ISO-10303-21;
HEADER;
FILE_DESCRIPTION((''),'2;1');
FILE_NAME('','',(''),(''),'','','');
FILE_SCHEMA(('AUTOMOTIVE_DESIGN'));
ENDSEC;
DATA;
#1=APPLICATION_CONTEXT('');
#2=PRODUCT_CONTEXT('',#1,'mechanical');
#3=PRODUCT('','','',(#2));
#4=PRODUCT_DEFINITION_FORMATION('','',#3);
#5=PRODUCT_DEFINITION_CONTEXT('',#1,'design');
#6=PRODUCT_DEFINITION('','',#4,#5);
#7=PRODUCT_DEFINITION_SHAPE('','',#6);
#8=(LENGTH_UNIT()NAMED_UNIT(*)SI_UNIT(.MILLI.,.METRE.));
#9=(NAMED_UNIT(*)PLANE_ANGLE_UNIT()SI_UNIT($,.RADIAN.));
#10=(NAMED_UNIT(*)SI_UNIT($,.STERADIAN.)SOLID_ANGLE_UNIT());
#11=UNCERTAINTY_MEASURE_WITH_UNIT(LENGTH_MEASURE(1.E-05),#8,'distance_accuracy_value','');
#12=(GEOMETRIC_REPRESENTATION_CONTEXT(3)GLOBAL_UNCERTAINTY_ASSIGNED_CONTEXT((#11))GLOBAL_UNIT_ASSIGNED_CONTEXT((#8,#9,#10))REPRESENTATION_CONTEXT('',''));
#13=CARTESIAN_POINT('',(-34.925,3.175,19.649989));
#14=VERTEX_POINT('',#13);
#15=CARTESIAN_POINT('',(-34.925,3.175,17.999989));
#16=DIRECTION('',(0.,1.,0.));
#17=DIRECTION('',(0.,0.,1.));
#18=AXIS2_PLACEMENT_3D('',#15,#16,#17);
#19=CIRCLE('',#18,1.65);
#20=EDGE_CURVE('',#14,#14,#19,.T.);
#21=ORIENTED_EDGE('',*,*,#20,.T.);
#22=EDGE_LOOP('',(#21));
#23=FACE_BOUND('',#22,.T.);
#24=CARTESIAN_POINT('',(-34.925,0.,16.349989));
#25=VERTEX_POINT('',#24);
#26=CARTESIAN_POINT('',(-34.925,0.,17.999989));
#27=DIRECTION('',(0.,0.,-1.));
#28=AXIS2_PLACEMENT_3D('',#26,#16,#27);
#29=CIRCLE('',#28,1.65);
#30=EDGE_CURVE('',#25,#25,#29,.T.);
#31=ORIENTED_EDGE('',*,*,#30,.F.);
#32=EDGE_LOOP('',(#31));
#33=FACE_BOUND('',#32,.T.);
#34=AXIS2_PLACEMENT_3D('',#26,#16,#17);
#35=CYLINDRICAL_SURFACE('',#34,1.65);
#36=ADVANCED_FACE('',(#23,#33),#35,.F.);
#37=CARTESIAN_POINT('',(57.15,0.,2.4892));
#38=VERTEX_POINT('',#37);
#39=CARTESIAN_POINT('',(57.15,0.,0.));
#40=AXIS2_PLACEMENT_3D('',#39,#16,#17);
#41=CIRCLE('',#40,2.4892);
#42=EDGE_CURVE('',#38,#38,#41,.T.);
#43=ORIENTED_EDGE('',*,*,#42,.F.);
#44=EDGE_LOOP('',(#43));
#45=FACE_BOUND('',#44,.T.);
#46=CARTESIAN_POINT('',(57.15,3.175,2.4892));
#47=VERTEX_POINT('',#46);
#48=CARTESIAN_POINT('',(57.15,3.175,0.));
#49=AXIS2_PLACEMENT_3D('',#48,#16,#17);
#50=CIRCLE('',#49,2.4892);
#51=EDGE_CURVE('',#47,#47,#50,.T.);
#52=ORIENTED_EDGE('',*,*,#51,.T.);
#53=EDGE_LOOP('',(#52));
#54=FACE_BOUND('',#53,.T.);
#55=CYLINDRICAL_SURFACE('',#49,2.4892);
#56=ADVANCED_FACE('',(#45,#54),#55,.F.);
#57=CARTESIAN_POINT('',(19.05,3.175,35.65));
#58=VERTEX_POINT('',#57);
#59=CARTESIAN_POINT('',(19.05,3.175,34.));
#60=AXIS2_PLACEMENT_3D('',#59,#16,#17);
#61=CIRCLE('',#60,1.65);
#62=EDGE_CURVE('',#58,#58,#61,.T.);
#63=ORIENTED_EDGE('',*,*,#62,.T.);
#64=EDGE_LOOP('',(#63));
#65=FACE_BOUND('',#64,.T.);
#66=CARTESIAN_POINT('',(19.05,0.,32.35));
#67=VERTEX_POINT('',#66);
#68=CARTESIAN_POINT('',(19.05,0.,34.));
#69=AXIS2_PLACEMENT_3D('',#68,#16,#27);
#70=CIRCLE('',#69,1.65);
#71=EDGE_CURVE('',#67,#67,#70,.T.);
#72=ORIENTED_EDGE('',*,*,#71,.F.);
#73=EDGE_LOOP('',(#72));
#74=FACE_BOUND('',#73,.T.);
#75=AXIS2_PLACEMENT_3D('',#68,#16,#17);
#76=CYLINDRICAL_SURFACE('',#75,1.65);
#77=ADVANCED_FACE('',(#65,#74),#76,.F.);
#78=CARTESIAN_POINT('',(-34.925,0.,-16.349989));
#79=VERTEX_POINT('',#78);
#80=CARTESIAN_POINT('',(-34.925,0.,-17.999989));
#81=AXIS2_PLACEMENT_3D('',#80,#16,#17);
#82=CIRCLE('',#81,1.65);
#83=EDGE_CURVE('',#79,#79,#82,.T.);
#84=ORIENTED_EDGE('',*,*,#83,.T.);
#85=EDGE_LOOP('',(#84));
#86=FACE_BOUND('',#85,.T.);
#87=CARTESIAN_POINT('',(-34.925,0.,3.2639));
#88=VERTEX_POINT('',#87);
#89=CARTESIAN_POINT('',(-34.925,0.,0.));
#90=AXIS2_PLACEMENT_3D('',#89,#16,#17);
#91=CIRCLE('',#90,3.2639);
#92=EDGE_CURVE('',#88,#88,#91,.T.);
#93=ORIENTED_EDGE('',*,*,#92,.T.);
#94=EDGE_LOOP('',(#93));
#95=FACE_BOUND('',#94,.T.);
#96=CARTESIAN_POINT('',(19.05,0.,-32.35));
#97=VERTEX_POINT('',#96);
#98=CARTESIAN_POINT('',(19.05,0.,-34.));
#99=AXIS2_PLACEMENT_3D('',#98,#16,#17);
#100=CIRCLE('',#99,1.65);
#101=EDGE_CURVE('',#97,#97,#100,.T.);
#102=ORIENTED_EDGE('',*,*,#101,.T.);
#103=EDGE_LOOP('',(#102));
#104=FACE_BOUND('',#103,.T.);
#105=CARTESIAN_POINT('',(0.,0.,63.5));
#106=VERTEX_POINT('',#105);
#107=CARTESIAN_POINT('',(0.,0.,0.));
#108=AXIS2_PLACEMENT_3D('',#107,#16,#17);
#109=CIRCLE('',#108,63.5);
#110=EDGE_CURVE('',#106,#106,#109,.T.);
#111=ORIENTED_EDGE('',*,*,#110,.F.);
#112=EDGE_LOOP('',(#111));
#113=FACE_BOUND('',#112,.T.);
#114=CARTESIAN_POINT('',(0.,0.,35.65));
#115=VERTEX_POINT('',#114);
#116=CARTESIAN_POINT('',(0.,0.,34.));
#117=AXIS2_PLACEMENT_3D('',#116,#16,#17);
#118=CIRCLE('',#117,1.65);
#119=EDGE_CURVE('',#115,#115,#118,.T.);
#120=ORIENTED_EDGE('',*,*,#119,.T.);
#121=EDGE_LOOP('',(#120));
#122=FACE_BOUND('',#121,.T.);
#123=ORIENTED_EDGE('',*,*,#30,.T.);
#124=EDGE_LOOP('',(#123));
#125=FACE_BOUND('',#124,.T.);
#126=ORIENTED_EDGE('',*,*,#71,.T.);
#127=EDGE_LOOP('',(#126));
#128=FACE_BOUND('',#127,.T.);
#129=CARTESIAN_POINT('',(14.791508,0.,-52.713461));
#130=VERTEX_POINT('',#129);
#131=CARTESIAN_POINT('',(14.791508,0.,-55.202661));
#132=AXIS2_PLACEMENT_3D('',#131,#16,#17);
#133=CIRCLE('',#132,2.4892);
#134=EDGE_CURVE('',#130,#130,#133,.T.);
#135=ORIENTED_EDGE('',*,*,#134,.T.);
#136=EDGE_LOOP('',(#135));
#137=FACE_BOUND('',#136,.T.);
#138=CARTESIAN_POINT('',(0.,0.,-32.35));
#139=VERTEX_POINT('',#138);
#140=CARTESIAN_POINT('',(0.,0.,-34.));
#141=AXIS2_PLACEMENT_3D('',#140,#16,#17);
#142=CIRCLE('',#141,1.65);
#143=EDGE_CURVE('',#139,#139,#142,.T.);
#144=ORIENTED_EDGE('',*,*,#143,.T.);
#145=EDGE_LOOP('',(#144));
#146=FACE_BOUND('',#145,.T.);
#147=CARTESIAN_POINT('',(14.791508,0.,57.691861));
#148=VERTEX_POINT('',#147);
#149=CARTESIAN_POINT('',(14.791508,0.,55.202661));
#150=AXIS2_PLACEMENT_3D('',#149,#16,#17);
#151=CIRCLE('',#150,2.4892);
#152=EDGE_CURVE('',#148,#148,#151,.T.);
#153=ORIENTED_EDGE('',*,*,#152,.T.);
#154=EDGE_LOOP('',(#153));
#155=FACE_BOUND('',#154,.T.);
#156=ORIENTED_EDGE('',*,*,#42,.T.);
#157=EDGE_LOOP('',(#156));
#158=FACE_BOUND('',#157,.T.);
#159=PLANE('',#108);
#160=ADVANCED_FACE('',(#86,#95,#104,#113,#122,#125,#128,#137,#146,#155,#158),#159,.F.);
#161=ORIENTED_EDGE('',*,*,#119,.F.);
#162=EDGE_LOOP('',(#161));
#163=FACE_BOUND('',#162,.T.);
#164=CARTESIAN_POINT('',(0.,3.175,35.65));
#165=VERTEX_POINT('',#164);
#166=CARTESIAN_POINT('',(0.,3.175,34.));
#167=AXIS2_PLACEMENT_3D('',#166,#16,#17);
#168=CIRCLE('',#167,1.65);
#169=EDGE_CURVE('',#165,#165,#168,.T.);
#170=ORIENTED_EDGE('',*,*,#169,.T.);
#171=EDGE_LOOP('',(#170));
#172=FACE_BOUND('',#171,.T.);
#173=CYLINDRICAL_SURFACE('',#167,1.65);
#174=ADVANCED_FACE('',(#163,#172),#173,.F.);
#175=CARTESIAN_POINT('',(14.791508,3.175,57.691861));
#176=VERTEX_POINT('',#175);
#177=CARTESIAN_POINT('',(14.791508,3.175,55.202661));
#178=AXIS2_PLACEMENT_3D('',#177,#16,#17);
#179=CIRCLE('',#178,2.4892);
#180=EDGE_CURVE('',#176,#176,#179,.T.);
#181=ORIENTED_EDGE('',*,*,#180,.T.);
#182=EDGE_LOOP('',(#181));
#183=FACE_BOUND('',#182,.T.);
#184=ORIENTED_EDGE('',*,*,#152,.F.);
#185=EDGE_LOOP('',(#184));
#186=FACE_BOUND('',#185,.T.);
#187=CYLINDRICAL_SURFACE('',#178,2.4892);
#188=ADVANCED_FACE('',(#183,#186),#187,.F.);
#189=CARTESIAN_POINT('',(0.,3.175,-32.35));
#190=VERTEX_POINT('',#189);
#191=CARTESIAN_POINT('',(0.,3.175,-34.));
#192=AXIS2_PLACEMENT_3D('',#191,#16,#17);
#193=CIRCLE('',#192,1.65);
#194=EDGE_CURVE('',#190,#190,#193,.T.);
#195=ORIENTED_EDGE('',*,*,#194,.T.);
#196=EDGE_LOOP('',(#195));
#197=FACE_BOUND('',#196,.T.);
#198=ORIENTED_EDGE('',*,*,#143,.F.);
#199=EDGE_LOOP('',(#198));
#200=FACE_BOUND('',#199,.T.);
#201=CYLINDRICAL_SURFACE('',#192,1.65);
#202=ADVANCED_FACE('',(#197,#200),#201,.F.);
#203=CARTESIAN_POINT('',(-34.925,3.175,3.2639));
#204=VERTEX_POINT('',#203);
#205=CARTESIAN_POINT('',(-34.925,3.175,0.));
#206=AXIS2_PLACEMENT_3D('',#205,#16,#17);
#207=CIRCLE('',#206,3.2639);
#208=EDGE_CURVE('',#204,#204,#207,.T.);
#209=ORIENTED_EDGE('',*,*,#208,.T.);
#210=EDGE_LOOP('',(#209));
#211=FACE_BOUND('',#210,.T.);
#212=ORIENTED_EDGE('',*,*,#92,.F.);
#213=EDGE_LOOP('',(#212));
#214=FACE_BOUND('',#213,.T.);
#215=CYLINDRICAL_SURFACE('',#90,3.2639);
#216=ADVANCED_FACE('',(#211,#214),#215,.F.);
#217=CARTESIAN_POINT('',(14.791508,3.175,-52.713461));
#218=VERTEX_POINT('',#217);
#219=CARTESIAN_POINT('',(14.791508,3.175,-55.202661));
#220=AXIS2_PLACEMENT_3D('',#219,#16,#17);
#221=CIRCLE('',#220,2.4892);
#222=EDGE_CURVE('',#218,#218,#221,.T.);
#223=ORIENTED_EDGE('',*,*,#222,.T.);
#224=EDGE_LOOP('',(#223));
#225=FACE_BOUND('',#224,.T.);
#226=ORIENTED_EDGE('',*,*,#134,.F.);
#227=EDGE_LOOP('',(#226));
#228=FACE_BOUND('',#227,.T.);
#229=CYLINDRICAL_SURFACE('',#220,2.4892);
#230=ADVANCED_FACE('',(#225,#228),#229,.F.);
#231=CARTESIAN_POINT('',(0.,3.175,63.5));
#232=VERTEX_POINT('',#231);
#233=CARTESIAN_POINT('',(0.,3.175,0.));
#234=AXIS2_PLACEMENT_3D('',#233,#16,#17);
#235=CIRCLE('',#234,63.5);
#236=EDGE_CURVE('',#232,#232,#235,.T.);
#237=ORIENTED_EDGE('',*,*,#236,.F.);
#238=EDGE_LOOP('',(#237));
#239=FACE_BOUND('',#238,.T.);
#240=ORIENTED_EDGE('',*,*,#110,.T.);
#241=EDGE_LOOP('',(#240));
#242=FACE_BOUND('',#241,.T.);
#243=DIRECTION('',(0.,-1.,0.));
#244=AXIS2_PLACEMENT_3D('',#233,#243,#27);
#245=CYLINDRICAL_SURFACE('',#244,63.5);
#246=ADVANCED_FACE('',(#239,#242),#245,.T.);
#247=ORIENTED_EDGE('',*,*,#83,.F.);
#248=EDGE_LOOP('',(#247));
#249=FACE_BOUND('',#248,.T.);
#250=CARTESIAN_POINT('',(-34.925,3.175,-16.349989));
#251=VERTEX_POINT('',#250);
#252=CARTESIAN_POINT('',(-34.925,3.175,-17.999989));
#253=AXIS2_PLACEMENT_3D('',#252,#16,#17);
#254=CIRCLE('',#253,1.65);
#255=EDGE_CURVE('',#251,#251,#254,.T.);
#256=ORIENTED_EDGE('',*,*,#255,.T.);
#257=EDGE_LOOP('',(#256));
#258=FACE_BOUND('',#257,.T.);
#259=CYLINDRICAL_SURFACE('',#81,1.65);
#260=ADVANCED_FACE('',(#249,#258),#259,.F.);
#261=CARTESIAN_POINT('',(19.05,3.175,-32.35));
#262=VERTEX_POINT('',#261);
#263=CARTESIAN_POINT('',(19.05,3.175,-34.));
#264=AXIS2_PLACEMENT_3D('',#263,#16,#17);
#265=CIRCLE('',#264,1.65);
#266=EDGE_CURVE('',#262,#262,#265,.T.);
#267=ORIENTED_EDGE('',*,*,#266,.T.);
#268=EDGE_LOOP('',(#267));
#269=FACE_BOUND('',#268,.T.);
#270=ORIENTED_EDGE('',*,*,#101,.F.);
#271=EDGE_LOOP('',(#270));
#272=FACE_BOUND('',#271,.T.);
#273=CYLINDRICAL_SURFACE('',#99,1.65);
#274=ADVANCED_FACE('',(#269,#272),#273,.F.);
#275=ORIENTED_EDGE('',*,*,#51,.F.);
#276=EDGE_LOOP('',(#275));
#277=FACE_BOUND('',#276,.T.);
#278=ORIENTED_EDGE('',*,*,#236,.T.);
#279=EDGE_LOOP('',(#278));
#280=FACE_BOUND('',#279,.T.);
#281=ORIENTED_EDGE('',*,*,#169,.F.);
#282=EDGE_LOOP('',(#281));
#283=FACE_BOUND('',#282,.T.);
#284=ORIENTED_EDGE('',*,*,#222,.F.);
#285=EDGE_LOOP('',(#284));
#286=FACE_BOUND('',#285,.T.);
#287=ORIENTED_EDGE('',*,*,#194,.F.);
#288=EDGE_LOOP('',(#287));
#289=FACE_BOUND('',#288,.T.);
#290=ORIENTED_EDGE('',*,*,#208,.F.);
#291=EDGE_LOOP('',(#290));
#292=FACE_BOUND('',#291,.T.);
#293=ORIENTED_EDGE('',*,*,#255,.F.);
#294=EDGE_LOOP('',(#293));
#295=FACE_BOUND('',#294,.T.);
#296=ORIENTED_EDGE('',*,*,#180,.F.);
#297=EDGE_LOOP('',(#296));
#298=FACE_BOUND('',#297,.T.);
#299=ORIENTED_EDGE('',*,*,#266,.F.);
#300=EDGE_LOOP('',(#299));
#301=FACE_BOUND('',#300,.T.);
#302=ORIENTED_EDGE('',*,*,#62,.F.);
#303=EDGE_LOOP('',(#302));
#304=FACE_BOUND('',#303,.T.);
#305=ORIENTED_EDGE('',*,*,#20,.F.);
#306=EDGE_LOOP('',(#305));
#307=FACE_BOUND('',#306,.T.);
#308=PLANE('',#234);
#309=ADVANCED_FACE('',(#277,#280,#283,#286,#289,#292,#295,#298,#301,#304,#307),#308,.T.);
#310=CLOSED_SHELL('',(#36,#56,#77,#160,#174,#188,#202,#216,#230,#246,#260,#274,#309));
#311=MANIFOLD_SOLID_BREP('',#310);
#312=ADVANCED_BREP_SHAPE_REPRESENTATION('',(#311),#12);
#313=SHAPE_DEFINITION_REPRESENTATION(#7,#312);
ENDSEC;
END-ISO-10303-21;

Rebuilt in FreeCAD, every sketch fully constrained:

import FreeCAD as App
import Part
import Sketcher

V = App.Vector
Q = App.Units.Quantity

doc = App.newDocument("Part")
body = doc.addObject("PartDesign::Body", "Body")

sketch1 = body.newObject("Sketcher::SketchObject", "Sketch")
sketch1.AttachmentSupport = (doc.getObject("XZ_Plane"), [""])
sketch1.MapMode = "FlatFace"
sketch1.addGeometry(Part.Circle(V(0, 0, 0), V(0, 0, 1), 64), False)
sketch1.addConstraint(Sketcher.Constraint("Coincident", 0, 3, -1, 1))
sketch1.addConstraint(Sketcher.Constraint("Diameter", 0, Q("5 in")))
pad1 = body.newObject("PartDesign::Pad", "Pad")
pad1.Profile = sketch1
pad1.Length = Q("0.125 in")
pad1.Reversed = True

sketch2 = body.newObject("Sketcher::SketchObject", "Sketch001")
sketch2.AttachmentSupport = (doc.getObject("XZ_Plane"), [""])
sketch2.MapMode = "FlatFace"
sketch2.AttachmentOffset = App.Placement(V(0, 0, -0.125 * 25.4), App.Rotation())
sketch2.addGeometry(Part.Circle(V(0, -34, 0), V(0, 0, 1), 1.6), False)
sketch2.addGeometry(Part.Circle(V(0, 34, 0), V(0, 0, 1), 1.6), False)
sketch2.addConstraint(Sketcher.Constraint("Equal", 0, 1))
sketch2.addConstraint(Sketcher.Constraint("Symmetric", 0, 3, 1, 3, -1, 1))
sketch2.addConstraint(Sketcher.Constraint("PointOnObject", 0, 3, -2))
sketch2.addConstraint(Sketcher.Constraint("Diameter", 0, 3.3))
sketch2.addConstraint(Sketcher.Constraint("DistanceY", 0, 3, -1, 1, 34.0))
doc.recompute()
hole = body.newObject("PartDesign::Hole", "Hole")
hole.Profile = sketch2
hole.ThreadType = "None"
hole.Diameter = 3.3
hole.DepthType = "ThroughAll"
hole.Reversed = True

sketch3 = body.newObject("Sketcher::SketchObject", "Sketch002")
sketch3.AttachmentSupport = (doc.getObject("XZ_Plane"), [""])
sketch3.MapMode = "FlatFace"
sketch3.AttachmentOffset = App.Placement(V(0, 0, -0.125 * 25.4), App.Rotation())
sketch3.addGeometry(Part.Circle(V(14.8, -55.2, 0), V(0, 0, 1), 2.5), False)
sketch3.addGeometry(Part.Circle(V(57.1, 0, 0), V(0, 0, 1), 2.5), False)
sketch3.addGeometry(Part.Circle(V(14.8, 55.2, 0), V(0, 0, 1), 2.5), False)
sketch3.addConstraint(Sketcher.Constraint("Equal", 0, 1))
sketch3.addConstraint(Sketcher.Constraint("Equal", 1, 2))
sketch3.addConstraint(Sketcher.Constraint("Symmetric", 0, 3, 2, 3, -1))
sketch3.addConstraint(Sketcher.Constraint("PointOnObject", 1, 3, -1))
sketch3.addConstraint(Sketcher.Constraint("Diameter", 0, Q("0.196 in")))
sketch3.addConstraint(Sketcher.Constraint("DistanceX", -1, 1, 1, 3, Q("2.25 in")))
sketch3.addConstraint(Sketcher.Constraint("DistanceX", -1, 1, 0, 3, 14.791508))
sketch3.addConstraint(Sketcher.Constraint("DistanceY", 0, 3, -1, 1, 55.202661))
doc.recompute()
hole2 = body.newObject("PartDesign::Hole", "Hole001")
hole2.Profile = sketch3
hole2.ThreadType = "None"
hole2.Diameter = Q("0.196 in")
hole2.DepthType = "ThroughAll"
hole2.Reversed = True

sketch4 = body.newObject("Sketcher::SketchObject", "Sketch003")
sketch4.AttachmentSupport = (doc.getObject("XZ_Plane"), [""])
sketch4.MapMode = "FlatFace"
sketch4.AttachmentOffset = App.Placement(V(0, 0, -0.125 * 25.4), App.Rotation())
sketch4.addGeometry(Part.Circle(V(-34.9, 0, 0), V(0, 0, 1), 3.3), False)
sketch4.addGeometry(Part.Circle(V(-34.9, -18, 0), V(0, 0, 1), 1.6), False)
sketch4.addGeometry(Part.Circle(V(-34.9, 18, 0), V(0, 0, 1), 1.6), False)
sketch4.addGeometry(Part.Circle(V(19.1, -34, 0), V(0, 0, 1), 1.6), False)
sketch4.addGeometry(Part.Circle(V(19.1, 34, 0), V(0, 0, 1), 1.6), False)
sketch4.addConstraint(Sketcher.Constraint("Equal", 1, 2))
sketch4.addConstraint(Sketcher.Constraint("Equal", 2, 3))
sketch4.addConstraint(Sketcher.Constraint("Equal", 3, 4))
sketch4.addConstraint(Sketcher.Constraint("Symmetric", 1, 3, 2, 3, -1))
sketch4.addConstraint(Sketcher.Constraint("Symmetric", 3, 3, 4, 3, -1))
sketch4.addConstraint(Sketcher.Constraint("PointOnObject", 0, 3, -1))
sketch4.addConstraint(Sketcher.Constraint("Vertical", 0, 3, 1, 3))
sketch4.addConstraint(Sketcher.Constraint("Diameter", 0, Q("0.257 in")))
sketch4.addConstraint(Sketcher.Constraint("Diameter", 1, 3.3))
sketch4.addConstraint(Sketcher.Constraint("DistanceX", -1, 1, 3, 3, Q("0.75 in")))
sketch4.addConstraint(Sketcher.Constraint("DistanceX", 0, 3, -1, 1, Q("1.375 in")))
sketch4.addConstraint(Sketcher.Constraint("DistanceY", 3, 3, -1, 1, 34.0))
sketch4.addConstraint(Sketcher.Constraint("DistanceY", 1, 3, -1, 1, 17.999989))
pocket1 = body.newObject("PartDesign::Pocket", "Pocket")
pocket1.Profile = sketch4
pocket1.Type = "ThroughAll"
pocket1.Midplane = True

doc.recompute()
